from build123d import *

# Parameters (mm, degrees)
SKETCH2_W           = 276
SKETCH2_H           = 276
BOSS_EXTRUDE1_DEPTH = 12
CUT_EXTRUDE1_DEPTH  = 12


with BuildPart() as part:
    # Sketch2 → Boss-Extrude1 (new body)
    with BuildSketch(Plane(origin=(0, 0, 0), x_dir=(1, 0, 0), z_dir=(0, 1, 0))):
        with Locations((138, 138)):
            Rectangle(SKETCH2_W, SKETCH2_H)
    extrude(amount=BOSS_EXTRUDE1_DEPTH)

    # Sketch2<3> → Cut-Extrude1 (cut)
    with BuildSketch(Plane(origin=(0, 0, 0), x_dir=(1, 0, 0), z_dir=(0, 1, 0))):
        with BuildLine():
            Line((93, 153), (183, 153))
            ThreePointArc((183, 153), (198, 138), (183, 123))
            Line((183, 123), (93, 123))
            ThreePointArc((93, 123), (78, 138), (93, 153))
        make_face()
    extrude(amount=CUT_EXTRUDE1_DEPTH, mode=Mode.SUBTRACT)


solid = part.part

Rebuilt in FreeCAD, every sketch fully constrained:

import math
import FreeCAD as App
import Part
import Sketcher

V = App.Vector
Q = App.Units.Quantity


def add_polygon(sketch, points):
    """Adds a closed chain of lines whose ends are joined by coincident constraints."""
    first, n = sketch.GeometryCount, len(points)
    for a, b in zip(points, points[1:] + points[:1]):
        sketch.addGeometry(Part.LineSegment(App.Vector(*a, 0), App.Vector(*b, 0)), False)
    for i in range(n):
        sketch.addConstraint(Sketcher.Constraint("Coincident", first + i, 2, first + (i + 1) % n, 1))

doc = App.newDocument("Part")
body = doc.addObject("PartDesign::Body", "Body")

# Sketch on XZ plane
sketch1 = doc.addObject("Sketcher::SketchObject", "Sketch")
body.addObject(sketch1)
sketch1.AttachmentSupport = (doc.XZ_Plane, [""])
sketch1.MapMode = "FlatFace"
add_polygon(sketch1, [(0, -276), (0, 0), (276, 0), (276, -276)])  # lines 0-3
sketch1.addConstraint(Sketcher.Constraint("Vertical", 0))
sketch1.addConstraint(Sketcher.Constraint("Horizontal", 1))
sketch1.addConstraint(Sketcher.Constraint("Vertical", 2))
sketch1.addConstraint(Sketcher.Constraint("Horizontal", 3))
sketch1.addConstraint(Sketcher.Constraint("Coincident", 0, 2, -1, 1))
sketch1.addConstraint(Sketcher.Constraint("Equal", 3, 0))
sketch1.addConstraint(Sketcher.Constraint("DistanceX", 1, 1, 1, 2, Q("276 mm")))
pad1 = doc.addObject("PartDesign::Pad", "Pad")
body.addObject(pad1)
pad1.Profile = sketch1
pad1.Length = 12
pad1.Reversed = True

# Sketch on XZ plane
sketch2 = doc.addObject("Sketcher::SketchObject", "Sketch001")
body.addObject(sketch2)
sketch2.AttachmentSupport = (doc.XZ_Plane, [""])
sketch2.MapMode = "FlatFace"
sketch2.addGeometry(Part.LineSegment(V(183, -153, 0), V(93, -153, 0)), False)
sketch2.addGeometry(Part.ArcOfCircle(Part.Circle(V(93, -138, 0), V(0, 0, 1), 15), math.radians(90), math.radians(270)), False)
sketch2.addGeometry(Part.LineSegment(V(93, -123, 0), V(183, -123, 0)), False)
sketch2.addGeometry(Part.ArcOfCircle(Part.Circle(V(183, -138, 0), V(0, 0, 1), 15), math.radians(-90), math.radians(90)), False)
sketch2.addConstraint(Sketcher.Constraint("Tangent", 0, 2, 1, 2))
sketch2.addConstraint(Sketcher.Constraint("Tangent", 1, 1, 2, 1))
sketch2.addConstraint(Sketcher.Constraint("Tangent", 2, 2, 3, 2))
sketch2.addConstraint(Sketcher.Constraint("Tangent", 3, 1, 0, 1))
sketch2.addConstraint(Sketcher.Constraint("Horizontal", 0))
sketch2.addConstraint(Sketcher.Constraint("Horizontal", 2))
sketch2.addConstraint(Sketcher.Constraint("Radius", 1, Q("15 mm")))
sketch2.addConstraint(Sketcher.Constraint("DistanceX", 0, 2, 0, 1, Q("90 mm")))
sketch2.addConstraint(Sketcher.Constraint("DistanceX", -1, 1, 1, 3, Q("93 mm")))
sketch2.addConstraint(Sketcher.Constraint("DistanceY", 1, 3, -1, 1, Q("138 mm")))
pocket1 = doc.addObject("PartDesign::Pocket", "Pocket")
body.addObject(pocket1)
pocket1.Profile = sketch2
pocket1.Length = 12

doc.recompute()
